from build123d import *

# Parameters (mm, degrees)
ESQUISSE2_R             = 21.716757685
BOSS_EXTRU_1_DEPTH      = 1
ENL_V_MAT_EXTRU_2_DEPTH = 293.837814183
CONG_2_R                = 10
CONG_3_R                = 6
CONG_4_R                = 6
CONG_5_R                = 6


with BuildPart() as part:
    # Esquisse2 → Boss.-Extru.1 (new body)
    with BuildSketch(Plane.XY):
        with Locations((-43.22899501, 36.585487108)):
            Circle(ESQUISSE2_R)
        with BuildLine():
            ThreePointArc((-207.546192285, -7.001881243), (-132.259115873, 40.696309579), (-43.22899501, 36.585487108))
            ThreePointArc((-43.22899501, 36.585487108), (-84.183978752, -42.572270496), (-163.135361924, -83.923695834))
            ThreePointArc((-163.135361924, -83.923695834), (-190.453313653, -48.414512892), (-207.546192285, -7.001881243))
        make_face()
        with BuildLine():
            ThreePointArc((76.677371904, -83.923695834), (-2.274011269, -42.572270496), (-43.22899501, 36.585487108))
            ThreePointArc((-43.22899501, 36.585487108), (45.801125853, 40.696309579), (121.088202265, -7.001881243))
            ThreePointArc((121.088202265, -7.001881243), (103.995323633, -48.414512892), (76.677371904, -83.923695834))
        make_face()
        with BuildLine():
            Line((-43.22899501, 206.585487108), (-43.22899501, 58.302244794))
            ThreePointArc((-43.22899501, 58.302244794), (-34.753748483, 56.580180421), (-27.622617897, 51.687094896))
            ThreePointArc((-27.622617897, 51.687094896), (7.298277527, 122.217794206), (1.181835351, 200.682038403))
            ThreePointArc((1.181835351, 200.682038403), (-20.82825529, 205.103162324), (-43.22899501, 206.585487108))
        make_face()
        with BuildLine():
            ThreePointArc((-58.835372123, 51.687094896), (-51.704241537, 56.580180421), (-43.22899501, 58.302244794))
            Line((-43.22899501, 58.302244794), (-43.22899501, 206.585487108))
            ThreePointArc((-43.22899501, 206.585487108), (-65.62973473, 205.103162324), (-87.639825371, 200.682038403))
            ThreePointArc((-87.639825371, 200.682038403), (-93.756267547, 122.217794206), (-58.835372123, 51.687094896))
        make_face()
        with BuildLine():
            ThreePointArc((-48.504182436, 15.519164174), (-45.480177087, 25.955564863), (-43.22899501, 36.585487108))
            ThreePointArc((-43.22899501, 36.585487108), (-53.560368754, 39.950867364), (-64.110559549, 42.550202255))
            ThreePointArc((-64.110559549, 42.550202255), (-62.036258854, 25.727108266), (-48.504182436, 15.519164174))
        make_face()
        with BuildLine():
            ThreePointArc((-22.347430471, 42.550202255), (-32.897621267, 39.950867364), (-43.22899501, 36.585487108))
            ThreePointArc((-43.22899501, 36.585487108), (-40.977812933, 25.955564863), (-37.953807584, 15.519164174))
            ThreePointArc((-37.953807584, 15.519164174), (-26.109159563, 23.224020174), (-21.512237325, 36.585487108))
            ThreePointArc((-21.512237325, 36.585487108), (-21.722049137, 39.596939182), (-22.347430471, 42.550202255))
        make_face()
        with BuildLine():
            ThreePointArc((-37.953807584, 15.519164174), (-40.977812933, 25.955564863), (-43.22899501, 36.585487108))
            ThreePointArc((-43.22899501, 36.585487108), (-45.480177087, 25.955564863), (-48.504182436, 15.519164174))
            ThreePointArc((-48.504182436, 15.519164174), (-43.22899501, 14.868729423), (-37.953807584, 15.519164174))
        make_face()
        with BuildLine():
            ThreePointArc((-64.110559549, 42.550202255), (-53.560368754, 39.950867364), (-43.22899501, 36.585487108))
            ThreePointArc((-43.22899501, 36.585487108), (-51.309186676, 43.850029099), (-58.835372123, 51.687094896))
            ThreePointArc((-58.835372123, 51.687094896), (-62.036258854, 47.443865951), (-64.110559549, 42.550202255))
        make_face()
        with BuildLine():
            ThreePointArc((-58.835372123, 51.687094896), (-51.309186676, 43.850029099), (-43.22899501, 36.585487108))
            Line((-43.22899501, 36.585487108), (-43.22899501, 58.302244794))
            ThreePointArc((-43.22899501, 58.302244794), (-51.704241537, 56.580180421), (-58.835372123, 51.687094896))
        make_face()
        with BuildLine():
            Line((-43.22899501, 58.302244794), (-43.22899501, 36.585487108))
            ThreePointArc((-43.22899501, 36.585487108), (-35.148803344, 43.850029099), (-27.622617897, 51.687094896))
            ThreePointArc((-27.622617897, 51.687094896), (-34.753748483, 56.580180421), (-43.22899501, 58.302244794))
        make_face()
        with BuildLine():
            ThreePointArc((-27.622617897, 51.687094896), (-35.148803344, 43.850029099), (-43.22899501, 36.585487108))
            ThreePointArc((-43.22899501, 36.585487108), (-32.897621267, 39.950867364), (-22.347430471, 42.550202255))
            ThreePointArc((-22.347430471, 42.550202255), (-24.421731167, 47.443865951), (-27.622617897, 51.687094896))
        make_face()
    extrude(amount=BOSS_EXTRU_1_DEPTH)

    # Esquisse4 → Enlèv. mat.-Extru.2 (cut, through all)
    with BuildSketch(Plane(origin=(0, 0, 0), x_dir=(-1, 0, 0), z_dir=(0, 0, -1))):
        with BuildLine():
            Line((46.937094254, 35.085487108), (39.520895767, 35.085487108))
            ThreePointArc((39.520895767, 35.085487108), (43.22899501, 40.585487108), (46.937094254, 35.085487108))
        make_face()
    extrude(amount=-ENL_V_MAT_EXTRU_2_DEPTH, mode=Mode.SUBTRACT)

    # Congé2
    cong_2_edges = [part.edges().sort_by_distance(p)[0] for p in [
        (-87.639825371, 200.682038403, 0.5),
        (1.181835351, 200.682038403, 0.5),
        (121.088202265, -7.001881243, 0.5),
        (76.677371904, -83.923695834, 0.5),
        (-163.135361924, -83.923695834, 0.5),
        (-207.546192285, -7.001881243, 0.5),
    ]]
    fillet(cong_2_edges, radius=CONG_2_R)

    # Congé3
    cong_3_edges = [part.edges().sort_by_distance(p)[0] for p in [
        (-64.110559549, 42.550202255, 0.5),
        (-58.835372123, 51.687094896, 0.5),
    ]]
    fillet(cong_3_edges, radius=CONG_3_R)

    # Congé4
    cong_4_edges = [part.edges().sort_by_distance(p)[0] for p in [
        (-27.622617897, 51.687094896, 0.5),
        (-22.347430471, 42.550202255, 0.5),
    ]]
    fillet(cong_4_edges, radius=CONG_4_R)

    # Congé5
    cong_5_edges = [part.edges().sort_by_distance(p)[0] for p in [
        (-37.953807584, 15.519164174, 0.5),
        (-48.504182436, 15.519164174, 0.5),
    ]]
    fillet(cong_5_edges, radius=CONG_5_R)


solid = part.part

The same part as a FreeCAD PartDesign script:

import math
import FreeCAD as App
import Part
import Sketcher
from FreeCAD import Vector


def edges_at(feature, points):
    """Names of the edges that pass closest to the given points."""
    edges = feature.Shape.Edges
    near = lambda p: min(range(len(edges)), key=lambda i: edges[i].distToShape(Part.Vertex(*p))[0])
    return sorted({f"Edge{near(p) + 1}" for p in points})

doc = App.newDocument("Part")
params = doc.addObject("Spreadsheet::Sheet", "Params")
for row, (alias, value) in enumerate([
    ("sketch1_radius", "170 mm"),
    ("sketch1_radius2", "170 mm"),
    ("sketch1_radius3", "170 mm"),
    ("pad1_length", "1 mm"),
    ("sketch2_radius", "4 mm"),
    ("fillet_radius", "10 mm"),
    ("fillet2_radius", "6 mm"),
    ("fillet3_radius", "6 mm"),
    ("fillet4_radius", "6 mm"),
], start=1):
    params.set(f"A{row}", alias)
    params.set(f"B{row}", "=" + value)
    params.setAlias(f"B{row}", alias)

body = doc.addObject("PartDesign::Body", "Body")

# Sketch on XY plane
sketch1 = body.newObject("Sketcher::SketchObject", "Sketch")
sketch1.AttachmentSupport = (doc.getObject("XY_Plane"), [""])
sketch1.MapMode = "FlatFace"
sketch1.addGeometry([
    Part.ArcOfCircle(Part.Circle(Vector(-94.262987, -102.542836, 0), Vector(0, 0, 1), 148.192978), math.radians(78.260208), math.radians(139.856337)),  # 0
    Part.ArcOfCircle(Part.Circle(Vector(-43.228995, 36.585487, 0), Vector(0, 0, 1), 170), math.radians(-165.143663), math.radians(-134.856337)),  # 1
    Part.ArcOfCircle(Part.Circle(Vector(-189.234653, 61.952915, 0), Vector(0, 0, 1), 148.192978), math.radians(-79.856337), math.radians(-18.260208)),  # 2
    Part.ArcOfCircle(Part.Circle(Vector(-43.228995, 36.585487, 0), Vector(0, 0, 1), 21.716758), math.radians(-104.058273), math.radians(-75.941727)),  # 3
    Part.ArcOfCircle(Part.Circle(Vector(102.776663, 61.952915, 0), Vector(0, 0, 1), 148.192978), math.radians(-161.739792), math.radians(-100.143663)),  # 4
    Part.ArcOfCircle(Part.Circle(Vector(-43.228995, 36.585487, 0), Vector(0, 0, 1), 170), math.radians(-45.143663), math.radians(-14.856337)),  # 5
    Part.ArcOfCircle(Part.Circle(Vector(7.804997, -102.542836, 0), Vector(0, 0, 1), 148.192978), math.radians(40.143663), math.radians(101.739792)),  # 6
    Part.ArcOfCircle(Part.Circle(Vector(-43.228995, 36.585487, 0), Vector(0, 0, 1), 21.716758), math.radians(15.941727), math.radians(44.058273)),  # 7
    Part.ArcOfCircle(Part.Circle(Vector(-138.200661, 150.346382, 0), Vector(0, 0, 1), 148.192978), math.radians(-41.739792), math.radians(19.856337)),  # 8
    Part.ArcOfCircle(Part.Circle(Vector(-43.228995, 36.585487, 0), Vector(0, 0, 1), 170), math.radians(74.856337), math.radians(90)),  # 9
    Part.ArcOfCircle(Part.Circle(Vector(-43.228995, 36.585487, 0), Vector(0, 0, 1), 170), math.radians(90), math.radians(105.143663)),  # 10
    Part.ArcOfCircle(Part.Circle(Vector(51.742671, 150.346382, 0), Vector(0, 0, 1), 148.192978), math.radians(160.143663), math.radians(221.739792)),  # 11
    Part.ArcOfCircle(Part.Circle(Vector(-43.228995, 36.585487, 0), Vector(0, 0, 1), 21.716758), math.radians(135.941727), math.radians(164.058273)),  # 12
], False)
sketch1.addConstraint([
    Sketcher.Constraint("Coincident", 0, 2, 1, 1),
    Sketcher.Constraint("Coincident", 1, 2, 2, 1),
    Sketcher.Constraint("Coincident", 2, 2, 3, 1),
    Sketcher.Constraint("Coincident", 3, 2, 4, 1),
    Sketcher.Constraint("Coincident", 4, 2, 5, 1),
    Sketcher.Constraint("Coincident", 5, 2, 6, 1),
    Sketcher.Constraint("Coincident", 6, 2, 7, 1),
    Sketcher.Constraint("Coincident", 7, 2, 8, 1),
    Sketcher.Constraint("Coincident", 8, 2, 9, 1),
    Sketcher.Constraint("Coincident", 9, 2, 10, 1),
    Sketcher.Constraint("Coincident", 10, 2, 11, 1),
    Sketcher.Constraint("Coincident", 11, 2, 12, 1),
    Sketcher.Constraint("Coincident", 12, 2, 0, 1),
    Sketcher.Constraint("Coincident", 3, 3, 1, 3),
    Sketcher.Constraint("Coincident", 5, 3, 1, 3),
    Sketcher.Constraint("Coincident", 7, 3, 1, 3),
    Sketcher.Constraint("Coincident", 9, 3, 1, 3),
    Sketcher.Constraint("Coincident", 10, 3, 1, 3),
    Sketcher.Constraint("Coincident", 12, 3, 1, 3),
    Sketcher.Constraint("Radius", 1, 170.0),
    Sketcher.Constraint("Radius", 5, 170.0),
    Sketcher.Constraint("Radius", 9, 170.0),
    Sketcher.Constraint("Radius", 0, 148.192978),
    Sketcher.Constraint("Radius", 2, 148.192978),
    Sketcher.Constraint("Radius", 3, 21.716758),
    Sketcher.Constraint("Radius", 4, 148.192978),
    Sketcher.Constraint("Radius", 6, 148.192978),
    Sketcher.Constraint("Radius", 7, 21.716758),
    Sketcher.Constraint("Radius", 8, 148.192978),
    Sketcher.Constraint("Radius", 11, 148.192978),
    Sketcher.Constraint("Radius", 12, 21.716758),
    Sketcher.Constraint("DistanceX", 8, 3, -1, 1, 138.200661),
    Sketcher.Constraint("DistanceX", -1, 1, 11, 3, 51.742671),
    Sketcher.Constraint("DistanceY", 0, 2, -1, 1, 7.001881),
    Sketcher.Constraint("DistanceX", 1, 2, -1, 1, 163.135362),
    Sketcher.Constraint("DistanceX", -1, 1, 4, 2, 76.677372),
    Sketcher.Constraint("DistanceY", 5, 2, -1, 1, 7.001881),
    Sketcher.Constraint("DistanceX", 6, 2, -1, 1, 22.34743),
    Sketcher.Constraint("DistanceY", -1, 1, 8, 2, 200.682038),
    Sketcher.Constraint("DistanceY", -1, 1, 10, 2, 200.682038),
    Sketcher.Constraint("DistanceX", 12, 2, -1, 1, 64.11056),
    Sketcher.Constraint("DistanceX", 2, 3, 1, 3, 146.005658),
    Sketcher.Constraint("DistanceY", 0, 3, 2, 3, 164.495751),
    Sketcher.Constraint("DistanceX", 1, 3, 4, 3, 146.005658),
    Sketcher.Constraint("DistanceX", 0, 3, 4, 3, 197.03965),
    Sketcher.Constraint("DistanceX", 9, 2, 8, 2, 44.41083),
])
sketch1.setExpression("Constraints[19]", "Params.sketch1_radius")
sketch1.setExpression("Constraints[20]", "Params.sketch1_radius2")
sketch1.setExpression("Constraints[21]", "Params.sketch1_radius3")
pad1 = body.newObject("PartDesign::Pad", "Pad")
pad1.Profile = sketch1
pad1.setExpression("Length", "Params.pad1_length")

# Sketch on XY plane
sketch2 = body.newObject("Sketcher::SketchObject", "Sketch001")
sketch2.AttachmentSupport = (doc.getObject("XY_Plane"), [""])
sketch2.MapMode = "FlatFace"
sketch2.addGeometry([
    Part.LineSegment(Vector(-39.5, 35.1, 0), Vector(-46.9, 35.1, 0)),
    Part.ArcOfCircle(Part.Circle(Vector(-43.2, 36.6, 0), Vector(0, 0, 1), 4), math.radians(-22), math.radians(202)),
], False)
sketch2.addConstraint([
    Sketcher.Constraint("Coincident", 0, 1, 1, 1),
    Sketcher.Constraint("Coincident", 1, 2, 0, 2),
    Sketcher.Constraint("Horizontal", 0),
    Sketcher.Constraint("Radius", 1, 4.0),
    Sketcher.Constraint("DistanceY", 0, 1, 1, 3, 1.5),
    Sketcher.Constraint("DistanceX", 1, 3, -1, 1, 43.228995),
    Sketcher.Constraint("DistanceY", -1, 1, 1, 3, 36.585487),
])
sketch2.setExpression("Constraints[3]", "Params.sketch2_radius")
pocket1 = body.newObject("PartDesign::Pocket", "Pocket")
pocket1.Profile = sketch2
pocket1.Type = "ThroughAll"
pocket1.Reversed = True
doc.recompute()

fillet = body.newObject("PartDesign::Fillet", "Fillet")
fillet.Base = (pocket1, edges_at(pocket1, [
    (-87.64, 200.682, 0.5),
    (1.182, 200.682, 0.5),
    (121.088, -7.002, 0.5),
    (76.677, -83.924, 0.5),
    (-163.135, -83.924, 0.5),
    (-207.546, -7.002, 0.5),
]))
fillet.setExpression("Radius", "Params.fillet_radius")
doc.recompute()

fillet2 = body.newObject("PartDesign::Fillet", "Fillet001")
fillet2.Base = (fillet, edges_at(fillet, [(-64.111, 42.55, 0.5), (-58.835, 51.687, 0.5)]))
fillet2.setExpression("Radius", "Params.fillet2_radius")
doc.recompute()

fillet3 = body.newObject("PartDesign::Fillet", "Fillet002")
fillet3.Base = (fillet2, edges_at(fillet2, [(-27.623, 51.687, 0.5), (-22.347, 42.55, 0.5)]))
fillet3.setExpression("Radius", "Params.fillet3_radius")
doc.recompute()

fillet4 = body.newObject("PartDesign::Fillet", "Fillet003")
fillet4.Base = (fillet3, edges_at(fillet3, [(-37.954, 15.519, 0.5), (-48.504, 15.519, 0.5)]))
fillet4.setExpression("Radius", "Params.fillet4_radius")

doc.recompute()
